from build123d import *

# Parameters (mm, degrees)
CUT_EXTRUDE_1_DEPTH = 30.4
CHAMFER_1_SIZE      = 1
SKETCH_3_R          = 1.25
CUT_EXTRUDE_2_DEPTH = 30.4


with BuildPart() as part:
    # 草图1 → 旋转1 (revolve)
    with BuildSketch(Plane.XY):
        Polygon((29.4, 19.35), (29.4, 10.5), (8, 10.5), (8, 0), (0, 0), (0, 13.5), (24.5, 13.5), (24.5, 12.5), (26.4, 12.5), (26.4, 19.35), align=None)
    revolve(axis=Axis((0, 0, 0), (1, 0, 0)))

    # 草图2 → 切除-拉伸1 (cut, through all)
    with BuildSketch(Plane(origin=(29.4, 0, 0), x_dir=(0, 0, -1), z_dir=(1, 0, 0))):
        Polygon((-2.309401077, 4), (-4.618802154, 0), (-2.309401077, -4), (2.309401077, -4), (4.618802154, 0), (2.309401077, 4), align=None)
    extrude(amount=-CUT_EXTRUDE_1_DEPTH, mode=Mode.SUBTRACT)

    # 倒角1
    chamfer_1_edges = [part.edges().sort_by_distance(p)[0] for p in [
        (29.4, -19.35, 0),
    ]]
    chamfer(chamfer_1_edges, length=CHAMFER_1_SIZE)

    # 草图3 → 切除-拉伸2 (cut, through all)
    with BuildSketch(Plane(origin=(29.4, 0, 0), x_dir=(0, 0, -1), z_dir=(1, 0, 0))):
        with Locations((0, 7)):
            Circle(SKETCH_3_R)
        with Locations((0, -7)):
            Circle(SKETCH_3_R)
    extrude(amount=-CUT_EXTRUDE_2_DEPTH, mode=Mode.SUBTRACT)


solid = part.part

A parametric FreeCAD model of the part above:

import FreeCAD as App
import Part
import Sketcher
Q = App.Units.Quantity


def edges_at(feature, points):
    """Names of the edges that pass closest to the given points."""
    edges = feature.Shape.Edges
    near = lambda p: min(range(len(edges)), key=lambda i: edges[i].distToShape(Part.Vertex(*p))[0])
    return sorted({f"Edge{near(p) + 1}" for p in points})


def add_polygon(sketch, points):
    """Adds a closed chain of lines whose ends are joined by coincident constraints."""
    first, n = sketch.GeometryCount, len(points)
    for a, b in zip(points, points[1:] + points[:1]):
        sketch.addGeometry(Part.LineSegment(App.Vector(*a, 0), App.Vector(*b, 0)), False)
    for i in range(n):
        sketch.addConstraint(Sketcher.Constraint("Coincident", first + i, 2, first + (i + 1) % n, 1))

doc = App.newDocument("Part")
body = doc.addObject("PartDesign::Body", "Body")

sketch1 = body.newObject("Sketcher::SketchObject", "Sketch")
sketch1.AttachmentSupport = (doc.getObject("XY_Plane"), [""])
sketch1.MapMode = "FlatFace"
add_polygon(sketch1, [(29.4, 10.5), (29.4, 19.4), (26.4, 19.4), (26.4, 12.5), (24.5, 12.5), (24.5, 13.5), (0, 13.5), (0, 0), (8, 0), (8, 10.5)])
sketch1.addConstraint([
    Sketcher.Constraint("Vertical", 0),
    Sketcher.Constraint("Horizontal", 1),
    Sketcher.Constraint("Vertical", 2),
    Sketcher.Constraint("Horizontal", 3),
    Sketcher.Constraint("Vertical", 4),
    Sketcher.Constraint("Horizontal", 5),
    Sketcher.Constraint("Vertical", 6),
    Sketcher.Constraint("Horizontal", 7),
    Sketcher.Constraint("Vertical", 8),
    Sketcher.Constraint("Horizontal", 9),
    Sketcher.Constraint("Coincident", 6, 2, -1, 1),
    Sketcher.Constraint("DistanceX", 1, 2, 1, 1, 3.0),
    Sketcher.Constraint("DistanceX", 7, 1, 7, 2, 8.0),
    Sketcher.Constraint("DistanceY", 4, 1, 4, 2, 1.0),
    Sketcher.Constraint("DistanceX", 3, 2, 3, 1, 1.9),
    Sketcher.Constraint("DistanceX", 5, 2, 5, 1, 24.5),
    Sketcher.Constraint("DistanceY", 6, 2, 6, 1, 13.5),
    Sketcher.Constraint("DistanceY", 8, 1, 8, 2, 10.5),
    Sketcher.Constraint("DistanceY", 0, 1, 0, 2, 8.85),
])
revolution = body.newObject("PartDesign::Revolution", "Revolution")
revolution.Profile = sketch1
revolution.ReferenceAxis = (sketch1, ["H_Axis"])
revolution.Angle = 360

sketch2 = body.newObject("Sketcher::SketchObject", "Sketch001")
sketch2.AttachmentSupport = (doc.getObject("YZ_Plane"), [""])
sketch2.MapMode = "FlatFace"
sketch2.AttachmentOffset = App.Placement(App.Vector(0, 0, 29.4), App.Rotation())
add_polygon(sketch2, [(4, 2.3), (0, 4.6), (-4, 2.3), (-4, -2.3), (0, -4.6), (4, -2.3)])
sketch2.addConstraint([
    Sketcher.Constraint("Vertical", 2),
    Sketcher.Constraint("Vertical", 5),
    Sketcher.Constraint("Symmetric", 0, 2, 3, 2, -1, 1),
    Sketcher.Constraint("Symmetric", 1, 2, 4, 2, -1, 1),
    Sketcher.Constraint("PointOnObject", 0, 2, -2),
    Sketcher.Constraint("Parallel", 0, 3),
    Sketcher.Constraint("Horizontal", 2, 2, 4, 2),
    Sketcher.Constraint("Angle", 0, Q("150 deg")),
    Sketcher.Constraint("DistanceX", 1, 2, -1, 1, 4.0),
    Sketcher.Constraint("DistanceY", -1, 1, 1, 2, 2.309401),
])
pocket1 = body.newObject("PartDesign::Pocket", "Pocket")
pocket1.Profile = sketch2
pocket1.Type = "ThroughAll"
doc.recompute()

chamfer = body.newObject("PartDesign::Chamfer", "Chamfer")
chamfer.Base = (pocket1, edges_at(pocket1, [(29.4, -19.35, 0)]))
chamfer.Size = 1

sketch3 = body.newObject("Sketcher::SketchObject", "Sketch002")
sketch3.AttachmentSupport = (doc.getObject("YZ_Plane"), [""])
sketch3.MapMode = "FlatFace"
sketch3.AttachmentOffset = App.Placement(App.Vector(0, 0, 29.4), App.Rotation())
sketch3.addGeometry([
    Part.Circle(App.Vector(7, 0, 0), App.Vector(0, 0, 1), 1.2),
    Part.Circle(App.Vector(-7, 0, 0), App.Vector(0, 0, 1), 1.2),
], False)
sketch3.addConstraint([
    Sketcher.Constraint("Equal", 0, 1),
    Sketcher.Constraint("Symmetric", 0, 3, 1, 3, -1, 1),
    Sketcher.Constraint("PointOnObject", 0, 3, -1),
    Sketcher.Constraint("Diameter", 0, 2.5),
    Sketcher.Constraint("DistanceX", -1, 1, 0, 3, 7.0),
])
pocket2 = body.newObject("PartDesign::Pocket", "Pocket001")
pocket2.Profile = sketch3
pocket2.Type = "ThroughAll"

doc.recompute()
